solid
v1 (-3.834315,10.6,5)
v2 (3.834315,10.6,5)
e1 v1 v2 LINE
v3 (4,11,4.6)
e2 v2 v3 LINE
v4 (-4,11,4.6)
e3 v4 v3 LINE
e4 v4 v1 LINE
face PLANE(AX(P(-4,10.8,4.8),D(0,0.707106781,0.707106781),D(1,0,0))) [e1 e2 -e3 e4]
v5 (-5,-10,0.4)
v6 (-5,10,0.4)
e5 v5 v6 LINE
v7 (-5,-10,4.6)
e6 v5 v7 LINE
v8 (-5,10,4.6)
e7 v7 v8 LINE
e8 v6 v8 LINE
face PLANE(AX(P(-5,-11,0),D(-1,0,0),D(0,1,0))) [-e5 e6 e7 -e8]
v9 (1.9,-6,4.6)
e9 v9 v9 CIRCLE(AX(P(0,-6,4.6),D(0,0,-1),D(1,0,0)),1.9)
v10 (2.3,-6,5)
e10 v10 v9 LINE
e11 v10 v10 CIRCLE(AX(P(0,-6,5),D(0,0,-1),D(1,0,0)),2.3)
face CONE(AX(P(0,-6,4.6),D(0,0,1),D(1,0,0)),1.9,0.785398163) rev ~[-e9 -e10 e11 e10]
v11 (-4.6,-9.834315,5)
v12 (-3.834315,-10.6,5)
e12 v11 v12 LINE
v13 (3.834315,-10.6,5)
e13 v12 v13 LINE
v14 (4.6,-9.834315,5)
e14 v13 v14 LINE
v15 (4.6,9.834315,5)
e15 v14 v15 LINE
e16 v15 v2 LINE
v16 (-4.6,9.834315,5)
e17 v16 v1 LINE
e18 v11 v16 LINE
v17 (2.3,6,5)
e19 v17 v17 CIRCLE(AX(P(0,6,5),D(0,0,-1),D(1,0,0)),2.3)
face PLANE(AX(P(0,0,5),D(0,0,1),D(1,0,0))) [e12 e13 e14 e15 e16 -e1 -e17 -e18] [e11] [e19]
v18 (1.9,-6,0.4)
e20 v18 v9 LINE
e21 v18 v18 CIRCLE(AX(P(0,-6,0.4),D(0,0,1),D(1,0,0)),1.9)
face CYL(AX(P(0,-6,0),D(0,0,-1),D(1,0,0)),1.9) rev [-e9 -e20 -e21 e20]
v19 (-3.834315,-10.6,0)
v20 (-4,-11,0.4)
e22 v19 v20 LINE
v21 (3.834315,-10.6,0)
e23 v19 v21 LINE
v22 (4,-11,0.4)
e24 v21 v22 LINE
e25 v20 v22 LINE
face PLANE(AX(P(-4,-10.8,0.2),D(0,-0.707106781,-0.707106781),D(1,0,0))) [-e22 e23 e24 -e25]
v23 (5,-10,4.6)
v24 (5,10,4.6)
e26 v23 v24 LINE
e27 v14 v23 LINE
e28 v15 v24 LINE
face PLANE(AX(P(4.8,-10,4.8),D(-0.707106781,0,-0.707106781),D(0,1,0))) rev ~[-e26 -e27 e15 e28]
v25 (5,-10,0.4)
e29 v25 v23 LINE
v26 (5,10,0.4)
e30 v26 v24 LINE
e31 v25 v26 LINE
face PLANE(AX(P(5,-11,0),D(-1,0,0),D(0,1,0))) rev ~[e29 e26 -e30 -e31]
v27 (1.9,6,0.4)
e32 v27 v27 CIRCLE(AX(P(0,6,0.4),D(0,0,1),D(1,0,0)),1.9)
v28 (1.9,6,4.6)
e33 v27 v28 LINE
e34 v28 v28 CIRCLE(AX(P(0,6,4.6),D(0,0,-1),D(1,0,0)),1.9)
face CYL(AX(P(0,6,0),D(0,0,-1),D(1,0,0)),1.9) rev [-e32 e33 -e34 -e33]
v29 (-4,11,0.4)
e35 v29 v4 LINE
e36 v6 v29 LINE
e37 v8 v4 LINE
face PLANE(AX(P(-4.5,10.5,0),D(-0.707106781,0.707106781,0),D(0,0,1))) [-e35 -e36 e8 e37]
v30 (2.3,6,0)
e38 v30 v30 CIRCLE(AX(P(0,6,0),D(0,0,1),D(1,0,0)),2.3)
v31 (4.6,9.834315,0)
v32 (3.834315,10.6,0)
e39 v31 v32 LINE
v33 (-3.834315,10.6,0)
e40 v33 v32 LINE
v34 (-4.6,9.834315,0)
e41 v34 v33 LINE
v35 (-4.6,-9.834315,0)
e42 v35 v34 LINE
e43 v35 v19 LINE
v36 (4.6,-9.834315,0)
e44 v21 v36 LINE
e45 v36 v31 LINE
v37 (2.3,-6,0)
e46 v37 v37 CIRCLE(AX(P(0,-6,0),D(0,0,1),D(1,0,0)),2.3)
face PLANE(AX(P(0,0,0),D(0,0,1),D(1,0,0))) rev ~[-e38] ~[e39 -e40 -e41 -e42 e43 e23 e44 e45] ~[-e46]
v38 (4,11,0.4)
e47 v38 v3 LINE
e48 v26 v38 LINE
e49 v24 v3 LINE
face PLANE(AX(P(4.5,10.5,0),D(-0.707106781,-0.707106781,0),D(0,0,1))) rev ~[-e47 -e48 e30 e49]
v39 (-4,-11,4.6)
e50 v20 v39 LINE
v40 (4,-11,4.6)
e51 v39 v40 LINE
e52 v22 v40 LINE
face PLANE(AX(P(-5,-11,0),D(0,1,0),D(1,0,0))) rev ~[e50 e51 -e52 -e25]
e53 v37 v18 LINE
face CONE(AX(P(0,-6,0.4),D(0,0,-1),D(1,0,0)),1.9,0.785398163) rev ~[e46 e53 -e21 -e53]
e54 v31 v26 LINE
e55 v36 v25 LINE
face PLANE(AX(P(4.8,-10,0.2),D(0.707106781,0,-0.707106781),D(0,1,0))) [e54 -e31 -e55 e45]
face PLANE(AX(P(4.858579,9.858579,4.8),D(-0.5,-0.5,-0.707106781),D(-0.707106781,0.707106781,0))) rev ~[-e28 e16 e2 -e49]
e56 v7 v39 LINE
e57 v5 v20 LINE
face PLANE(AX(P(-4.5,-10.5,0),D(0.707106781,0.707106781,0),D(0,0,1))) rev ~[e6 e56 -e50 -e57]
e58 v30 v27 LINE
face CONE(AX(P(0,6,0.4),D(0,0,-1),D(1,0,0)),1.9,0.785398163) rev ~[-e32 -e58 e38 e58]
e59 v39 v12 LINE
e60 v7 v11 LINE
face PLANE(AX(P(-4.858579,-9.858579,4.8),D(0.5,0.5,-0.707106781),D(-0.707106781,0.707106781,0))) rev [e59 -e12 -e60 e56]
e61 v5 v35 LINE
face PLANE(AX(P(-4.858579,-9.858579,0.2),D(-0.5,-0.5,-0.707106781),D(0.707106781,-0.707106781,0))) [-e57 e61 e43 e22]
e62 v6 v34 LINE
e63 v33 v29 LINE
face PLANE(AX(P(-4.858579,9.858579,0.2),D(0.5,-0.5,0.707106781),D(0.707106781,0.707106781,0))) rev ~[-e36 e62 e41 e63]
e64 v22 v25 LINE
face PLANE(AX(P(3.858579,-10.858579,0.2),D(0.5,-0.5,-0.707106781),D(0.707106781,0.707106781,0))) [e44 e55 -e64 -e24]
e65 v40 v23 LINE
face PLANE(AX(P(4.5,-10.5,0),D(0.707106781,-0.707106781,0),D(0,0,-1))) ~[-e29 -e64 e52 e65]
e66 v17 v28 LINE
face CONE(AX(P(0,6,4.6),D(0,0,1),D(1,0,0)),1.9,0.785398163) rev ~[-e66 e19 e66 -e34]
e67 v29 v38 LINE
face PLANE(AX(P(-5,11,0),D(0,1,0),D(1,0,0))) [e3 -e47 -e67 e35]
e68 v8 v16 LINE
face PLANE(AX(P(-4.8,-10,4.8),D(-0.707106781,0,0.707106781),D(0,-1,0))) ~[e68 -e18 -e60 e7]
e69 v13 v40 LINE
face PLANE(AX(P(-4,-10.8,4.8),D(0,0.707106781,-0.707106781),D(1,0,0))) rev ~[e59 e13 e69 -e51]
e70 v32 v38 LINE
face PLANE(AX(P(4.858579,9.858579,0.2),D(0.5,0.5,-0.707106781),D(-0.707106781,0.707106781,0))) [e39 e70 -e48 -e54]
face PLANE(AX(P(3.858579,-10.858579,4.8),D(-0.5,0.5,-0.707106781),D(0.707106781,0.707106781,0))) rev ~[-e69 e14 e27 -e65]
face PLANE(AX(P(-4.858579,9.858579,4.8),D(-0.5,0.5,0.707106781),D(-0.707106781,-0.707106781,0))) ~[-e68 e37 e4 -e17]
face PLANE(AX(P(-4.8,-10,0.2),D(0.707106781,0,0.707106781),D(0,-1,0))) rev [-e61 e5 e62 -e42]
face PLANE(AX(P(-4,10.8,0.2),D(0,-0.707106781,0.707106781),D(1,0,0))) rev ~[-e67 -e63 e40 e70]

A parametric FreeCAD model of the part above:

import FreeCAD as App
import Part
import Sketcher
from FreeCAD import Vector


def edges_at(feature, points):
    """Names of the edges that pass closest to the given points."""
    edges = feature.Shape.Edges
    near = lambda p: min(range(len(edges)), key=lambda i: edges[i].distToShape(Part.Vertex(*p))[0])
    return sorted({f"Edge{near(p) + 1}" for p in points})


def add_polygon(sketch, points):
    """Adds a closed chain of lines whose ends are joined by coincident constraints."""
    first, n = sketch.GeometryCount, len(points)
    for a, b in zip(points, points[1:] + points[:1]):
        sketch.addGeometry(Part.LineSegment(App.Vector(*a, 0), App.Vector(*b, 0)), False)
    for i in range(n):
        sketch.addConstraint(Sketcher.Constraint("Coincident", first + i, 2, first + (i + 1) % n, 1))

doc = App.newDocument("Part")
body = doc.addObject("PartDesign::Body", "Body")

sketch1 = body.newObject("Sketcher::SketchObject", "Sketch")
sketch1.AttachmentSupport = (doc.getObject("XY_Plane"), [""])
sketch1.MapMode = "FlatFace"
sketch1.addGeometry(Part.Circle(Vector(0, -6, 0), Vector(0, 0, 1), 1.9), False)
sketch1.addConstraint([
    Sketcher.Constraint("PointOnObject", 0, 3, -2),
    Sketcher.Constraint("Diameter", 0, 3.8),
    Sketcher.Constraint("DistanceY", 0, 3, -1, 1, 6.0),
])
pad1 = body.newObject("PartDesign::Pad", "Pad")
pad1.Profile = sketch1
pad1.Length = 10
body2 = doc.addObject("PartDesign::Body", "Body001")
body2.AllowCompound = True

sketch2 = body2.newObject("Sketcher::SketchObject", "Sketch001")
sketch2.AttachmentSupport = (doc.getObject("XY_Plane001"), [""])
sketch2.MapMode = "FlatFace"
sketch2.addGeometry(Part.Circle(Vector(0, 6, 0), Vector(0, 0, 1), 1.9), False)
sketch2.addConstraint([
    Sketcher.Constraint("PointOnObject", 0, 3, -2),
    Sketcher.Constraint("Diameter", 0, 3.8),
    Sketcher.Constraint("DistanceY", -1, 1, 0, 3, 6.0),
])
pad2 = body2.newObject("PartDesign::Pad", "Pad001")
pad2.Profile = sketch2
pad2.Length = 10
doc.recompute()

boolean = body2.newObject("PartDesign::Boolean", "Boolean")
boolean.Type = "Fuse"
boolean.addObjects([body])
body3 = doc.addObject("PartDesign::Body", "Body002")

sketch3 = body3.newObject("Sketcher::SketchObject", "Sketch002")
sketch3.AttachmentSupport = (doc.getObject("XY_Plane002"), [""])
sketch3.MapMode = "FlatFace"
add_polygon(sketch3, [(-5, 11), (-5, -11), (5, -11), (5, 11)])
sketch3.addConstraint([
    Sketcher.Constraint("Vertical", 0),
    Sketcher.Constraint("Horizontal", 1),
    Sketcher.Constraint("Vertical", 2),
    Sketcher.Constraint("Horizontal", 3),
    Sketcher.Constraint("Symmetric", 0, 2, 2, 2, -1, 1),
    Sketcher.Constraint("DistanceX", 1, 1, 1, 2, 10.0),
    Sketcher.Constraint("DistanceY", 0, 2, 0, 1, 22.0),
])
pad3 = body3.newObject("PartDesign::Pad", "Pad002")
pad3.Profile = sketch3
pad3.Length = 5
doc.recompute()

chamfer = body3.newObject("PartDesign::Chamfer", "Chamfer")
chamfer.Base = (pad3, edges_at(pad3, [
    (-5, -11, 2.5),
    (-5, 11, 2.5),
    (5, -11, 2.5),
    (5, 11, 2.5),
]))
chamfer.Size = 1
doc.recompute()

boolean2 = body3.newObject("PartDesign::Boolean", "Boolean001")
boolean2.Type = "Cut"
boolean2.addObjects([body2])
doc.recompute()

chamfer2 = body3.newObject("PartDesign::Chamfer", "Chamfer001")
chamfer2.Base = (boolean2, edges_at(boolean2, [
    (-5, 0, 5),
    (-5, 0, 0),
    (-4.5, -10.5, 5),
    (-4.5, 10.5, 5),
    (0, -11, 5),
    (0, 11, 5),
    (4.5, -10.5, 5),
    (4.5, 10.5, 5),
    (5, 0, 5),
    (-1.9, -6, 5),
    (-1.9, 6, 5),
    (-4.5, -10.5, 0),
    (-4.5, 10.5, 0),
    (0, -11, 0),
    (0, 11, 0),
    (4.5, -10.5, 0),
    (4.5, 10.5, 0),
    (5, 0, 0),
    (-1.9, -6, 0),
    (-1.9, 6, 0),
]))
chamfer2.Size = 0.4

doc.recompute()
